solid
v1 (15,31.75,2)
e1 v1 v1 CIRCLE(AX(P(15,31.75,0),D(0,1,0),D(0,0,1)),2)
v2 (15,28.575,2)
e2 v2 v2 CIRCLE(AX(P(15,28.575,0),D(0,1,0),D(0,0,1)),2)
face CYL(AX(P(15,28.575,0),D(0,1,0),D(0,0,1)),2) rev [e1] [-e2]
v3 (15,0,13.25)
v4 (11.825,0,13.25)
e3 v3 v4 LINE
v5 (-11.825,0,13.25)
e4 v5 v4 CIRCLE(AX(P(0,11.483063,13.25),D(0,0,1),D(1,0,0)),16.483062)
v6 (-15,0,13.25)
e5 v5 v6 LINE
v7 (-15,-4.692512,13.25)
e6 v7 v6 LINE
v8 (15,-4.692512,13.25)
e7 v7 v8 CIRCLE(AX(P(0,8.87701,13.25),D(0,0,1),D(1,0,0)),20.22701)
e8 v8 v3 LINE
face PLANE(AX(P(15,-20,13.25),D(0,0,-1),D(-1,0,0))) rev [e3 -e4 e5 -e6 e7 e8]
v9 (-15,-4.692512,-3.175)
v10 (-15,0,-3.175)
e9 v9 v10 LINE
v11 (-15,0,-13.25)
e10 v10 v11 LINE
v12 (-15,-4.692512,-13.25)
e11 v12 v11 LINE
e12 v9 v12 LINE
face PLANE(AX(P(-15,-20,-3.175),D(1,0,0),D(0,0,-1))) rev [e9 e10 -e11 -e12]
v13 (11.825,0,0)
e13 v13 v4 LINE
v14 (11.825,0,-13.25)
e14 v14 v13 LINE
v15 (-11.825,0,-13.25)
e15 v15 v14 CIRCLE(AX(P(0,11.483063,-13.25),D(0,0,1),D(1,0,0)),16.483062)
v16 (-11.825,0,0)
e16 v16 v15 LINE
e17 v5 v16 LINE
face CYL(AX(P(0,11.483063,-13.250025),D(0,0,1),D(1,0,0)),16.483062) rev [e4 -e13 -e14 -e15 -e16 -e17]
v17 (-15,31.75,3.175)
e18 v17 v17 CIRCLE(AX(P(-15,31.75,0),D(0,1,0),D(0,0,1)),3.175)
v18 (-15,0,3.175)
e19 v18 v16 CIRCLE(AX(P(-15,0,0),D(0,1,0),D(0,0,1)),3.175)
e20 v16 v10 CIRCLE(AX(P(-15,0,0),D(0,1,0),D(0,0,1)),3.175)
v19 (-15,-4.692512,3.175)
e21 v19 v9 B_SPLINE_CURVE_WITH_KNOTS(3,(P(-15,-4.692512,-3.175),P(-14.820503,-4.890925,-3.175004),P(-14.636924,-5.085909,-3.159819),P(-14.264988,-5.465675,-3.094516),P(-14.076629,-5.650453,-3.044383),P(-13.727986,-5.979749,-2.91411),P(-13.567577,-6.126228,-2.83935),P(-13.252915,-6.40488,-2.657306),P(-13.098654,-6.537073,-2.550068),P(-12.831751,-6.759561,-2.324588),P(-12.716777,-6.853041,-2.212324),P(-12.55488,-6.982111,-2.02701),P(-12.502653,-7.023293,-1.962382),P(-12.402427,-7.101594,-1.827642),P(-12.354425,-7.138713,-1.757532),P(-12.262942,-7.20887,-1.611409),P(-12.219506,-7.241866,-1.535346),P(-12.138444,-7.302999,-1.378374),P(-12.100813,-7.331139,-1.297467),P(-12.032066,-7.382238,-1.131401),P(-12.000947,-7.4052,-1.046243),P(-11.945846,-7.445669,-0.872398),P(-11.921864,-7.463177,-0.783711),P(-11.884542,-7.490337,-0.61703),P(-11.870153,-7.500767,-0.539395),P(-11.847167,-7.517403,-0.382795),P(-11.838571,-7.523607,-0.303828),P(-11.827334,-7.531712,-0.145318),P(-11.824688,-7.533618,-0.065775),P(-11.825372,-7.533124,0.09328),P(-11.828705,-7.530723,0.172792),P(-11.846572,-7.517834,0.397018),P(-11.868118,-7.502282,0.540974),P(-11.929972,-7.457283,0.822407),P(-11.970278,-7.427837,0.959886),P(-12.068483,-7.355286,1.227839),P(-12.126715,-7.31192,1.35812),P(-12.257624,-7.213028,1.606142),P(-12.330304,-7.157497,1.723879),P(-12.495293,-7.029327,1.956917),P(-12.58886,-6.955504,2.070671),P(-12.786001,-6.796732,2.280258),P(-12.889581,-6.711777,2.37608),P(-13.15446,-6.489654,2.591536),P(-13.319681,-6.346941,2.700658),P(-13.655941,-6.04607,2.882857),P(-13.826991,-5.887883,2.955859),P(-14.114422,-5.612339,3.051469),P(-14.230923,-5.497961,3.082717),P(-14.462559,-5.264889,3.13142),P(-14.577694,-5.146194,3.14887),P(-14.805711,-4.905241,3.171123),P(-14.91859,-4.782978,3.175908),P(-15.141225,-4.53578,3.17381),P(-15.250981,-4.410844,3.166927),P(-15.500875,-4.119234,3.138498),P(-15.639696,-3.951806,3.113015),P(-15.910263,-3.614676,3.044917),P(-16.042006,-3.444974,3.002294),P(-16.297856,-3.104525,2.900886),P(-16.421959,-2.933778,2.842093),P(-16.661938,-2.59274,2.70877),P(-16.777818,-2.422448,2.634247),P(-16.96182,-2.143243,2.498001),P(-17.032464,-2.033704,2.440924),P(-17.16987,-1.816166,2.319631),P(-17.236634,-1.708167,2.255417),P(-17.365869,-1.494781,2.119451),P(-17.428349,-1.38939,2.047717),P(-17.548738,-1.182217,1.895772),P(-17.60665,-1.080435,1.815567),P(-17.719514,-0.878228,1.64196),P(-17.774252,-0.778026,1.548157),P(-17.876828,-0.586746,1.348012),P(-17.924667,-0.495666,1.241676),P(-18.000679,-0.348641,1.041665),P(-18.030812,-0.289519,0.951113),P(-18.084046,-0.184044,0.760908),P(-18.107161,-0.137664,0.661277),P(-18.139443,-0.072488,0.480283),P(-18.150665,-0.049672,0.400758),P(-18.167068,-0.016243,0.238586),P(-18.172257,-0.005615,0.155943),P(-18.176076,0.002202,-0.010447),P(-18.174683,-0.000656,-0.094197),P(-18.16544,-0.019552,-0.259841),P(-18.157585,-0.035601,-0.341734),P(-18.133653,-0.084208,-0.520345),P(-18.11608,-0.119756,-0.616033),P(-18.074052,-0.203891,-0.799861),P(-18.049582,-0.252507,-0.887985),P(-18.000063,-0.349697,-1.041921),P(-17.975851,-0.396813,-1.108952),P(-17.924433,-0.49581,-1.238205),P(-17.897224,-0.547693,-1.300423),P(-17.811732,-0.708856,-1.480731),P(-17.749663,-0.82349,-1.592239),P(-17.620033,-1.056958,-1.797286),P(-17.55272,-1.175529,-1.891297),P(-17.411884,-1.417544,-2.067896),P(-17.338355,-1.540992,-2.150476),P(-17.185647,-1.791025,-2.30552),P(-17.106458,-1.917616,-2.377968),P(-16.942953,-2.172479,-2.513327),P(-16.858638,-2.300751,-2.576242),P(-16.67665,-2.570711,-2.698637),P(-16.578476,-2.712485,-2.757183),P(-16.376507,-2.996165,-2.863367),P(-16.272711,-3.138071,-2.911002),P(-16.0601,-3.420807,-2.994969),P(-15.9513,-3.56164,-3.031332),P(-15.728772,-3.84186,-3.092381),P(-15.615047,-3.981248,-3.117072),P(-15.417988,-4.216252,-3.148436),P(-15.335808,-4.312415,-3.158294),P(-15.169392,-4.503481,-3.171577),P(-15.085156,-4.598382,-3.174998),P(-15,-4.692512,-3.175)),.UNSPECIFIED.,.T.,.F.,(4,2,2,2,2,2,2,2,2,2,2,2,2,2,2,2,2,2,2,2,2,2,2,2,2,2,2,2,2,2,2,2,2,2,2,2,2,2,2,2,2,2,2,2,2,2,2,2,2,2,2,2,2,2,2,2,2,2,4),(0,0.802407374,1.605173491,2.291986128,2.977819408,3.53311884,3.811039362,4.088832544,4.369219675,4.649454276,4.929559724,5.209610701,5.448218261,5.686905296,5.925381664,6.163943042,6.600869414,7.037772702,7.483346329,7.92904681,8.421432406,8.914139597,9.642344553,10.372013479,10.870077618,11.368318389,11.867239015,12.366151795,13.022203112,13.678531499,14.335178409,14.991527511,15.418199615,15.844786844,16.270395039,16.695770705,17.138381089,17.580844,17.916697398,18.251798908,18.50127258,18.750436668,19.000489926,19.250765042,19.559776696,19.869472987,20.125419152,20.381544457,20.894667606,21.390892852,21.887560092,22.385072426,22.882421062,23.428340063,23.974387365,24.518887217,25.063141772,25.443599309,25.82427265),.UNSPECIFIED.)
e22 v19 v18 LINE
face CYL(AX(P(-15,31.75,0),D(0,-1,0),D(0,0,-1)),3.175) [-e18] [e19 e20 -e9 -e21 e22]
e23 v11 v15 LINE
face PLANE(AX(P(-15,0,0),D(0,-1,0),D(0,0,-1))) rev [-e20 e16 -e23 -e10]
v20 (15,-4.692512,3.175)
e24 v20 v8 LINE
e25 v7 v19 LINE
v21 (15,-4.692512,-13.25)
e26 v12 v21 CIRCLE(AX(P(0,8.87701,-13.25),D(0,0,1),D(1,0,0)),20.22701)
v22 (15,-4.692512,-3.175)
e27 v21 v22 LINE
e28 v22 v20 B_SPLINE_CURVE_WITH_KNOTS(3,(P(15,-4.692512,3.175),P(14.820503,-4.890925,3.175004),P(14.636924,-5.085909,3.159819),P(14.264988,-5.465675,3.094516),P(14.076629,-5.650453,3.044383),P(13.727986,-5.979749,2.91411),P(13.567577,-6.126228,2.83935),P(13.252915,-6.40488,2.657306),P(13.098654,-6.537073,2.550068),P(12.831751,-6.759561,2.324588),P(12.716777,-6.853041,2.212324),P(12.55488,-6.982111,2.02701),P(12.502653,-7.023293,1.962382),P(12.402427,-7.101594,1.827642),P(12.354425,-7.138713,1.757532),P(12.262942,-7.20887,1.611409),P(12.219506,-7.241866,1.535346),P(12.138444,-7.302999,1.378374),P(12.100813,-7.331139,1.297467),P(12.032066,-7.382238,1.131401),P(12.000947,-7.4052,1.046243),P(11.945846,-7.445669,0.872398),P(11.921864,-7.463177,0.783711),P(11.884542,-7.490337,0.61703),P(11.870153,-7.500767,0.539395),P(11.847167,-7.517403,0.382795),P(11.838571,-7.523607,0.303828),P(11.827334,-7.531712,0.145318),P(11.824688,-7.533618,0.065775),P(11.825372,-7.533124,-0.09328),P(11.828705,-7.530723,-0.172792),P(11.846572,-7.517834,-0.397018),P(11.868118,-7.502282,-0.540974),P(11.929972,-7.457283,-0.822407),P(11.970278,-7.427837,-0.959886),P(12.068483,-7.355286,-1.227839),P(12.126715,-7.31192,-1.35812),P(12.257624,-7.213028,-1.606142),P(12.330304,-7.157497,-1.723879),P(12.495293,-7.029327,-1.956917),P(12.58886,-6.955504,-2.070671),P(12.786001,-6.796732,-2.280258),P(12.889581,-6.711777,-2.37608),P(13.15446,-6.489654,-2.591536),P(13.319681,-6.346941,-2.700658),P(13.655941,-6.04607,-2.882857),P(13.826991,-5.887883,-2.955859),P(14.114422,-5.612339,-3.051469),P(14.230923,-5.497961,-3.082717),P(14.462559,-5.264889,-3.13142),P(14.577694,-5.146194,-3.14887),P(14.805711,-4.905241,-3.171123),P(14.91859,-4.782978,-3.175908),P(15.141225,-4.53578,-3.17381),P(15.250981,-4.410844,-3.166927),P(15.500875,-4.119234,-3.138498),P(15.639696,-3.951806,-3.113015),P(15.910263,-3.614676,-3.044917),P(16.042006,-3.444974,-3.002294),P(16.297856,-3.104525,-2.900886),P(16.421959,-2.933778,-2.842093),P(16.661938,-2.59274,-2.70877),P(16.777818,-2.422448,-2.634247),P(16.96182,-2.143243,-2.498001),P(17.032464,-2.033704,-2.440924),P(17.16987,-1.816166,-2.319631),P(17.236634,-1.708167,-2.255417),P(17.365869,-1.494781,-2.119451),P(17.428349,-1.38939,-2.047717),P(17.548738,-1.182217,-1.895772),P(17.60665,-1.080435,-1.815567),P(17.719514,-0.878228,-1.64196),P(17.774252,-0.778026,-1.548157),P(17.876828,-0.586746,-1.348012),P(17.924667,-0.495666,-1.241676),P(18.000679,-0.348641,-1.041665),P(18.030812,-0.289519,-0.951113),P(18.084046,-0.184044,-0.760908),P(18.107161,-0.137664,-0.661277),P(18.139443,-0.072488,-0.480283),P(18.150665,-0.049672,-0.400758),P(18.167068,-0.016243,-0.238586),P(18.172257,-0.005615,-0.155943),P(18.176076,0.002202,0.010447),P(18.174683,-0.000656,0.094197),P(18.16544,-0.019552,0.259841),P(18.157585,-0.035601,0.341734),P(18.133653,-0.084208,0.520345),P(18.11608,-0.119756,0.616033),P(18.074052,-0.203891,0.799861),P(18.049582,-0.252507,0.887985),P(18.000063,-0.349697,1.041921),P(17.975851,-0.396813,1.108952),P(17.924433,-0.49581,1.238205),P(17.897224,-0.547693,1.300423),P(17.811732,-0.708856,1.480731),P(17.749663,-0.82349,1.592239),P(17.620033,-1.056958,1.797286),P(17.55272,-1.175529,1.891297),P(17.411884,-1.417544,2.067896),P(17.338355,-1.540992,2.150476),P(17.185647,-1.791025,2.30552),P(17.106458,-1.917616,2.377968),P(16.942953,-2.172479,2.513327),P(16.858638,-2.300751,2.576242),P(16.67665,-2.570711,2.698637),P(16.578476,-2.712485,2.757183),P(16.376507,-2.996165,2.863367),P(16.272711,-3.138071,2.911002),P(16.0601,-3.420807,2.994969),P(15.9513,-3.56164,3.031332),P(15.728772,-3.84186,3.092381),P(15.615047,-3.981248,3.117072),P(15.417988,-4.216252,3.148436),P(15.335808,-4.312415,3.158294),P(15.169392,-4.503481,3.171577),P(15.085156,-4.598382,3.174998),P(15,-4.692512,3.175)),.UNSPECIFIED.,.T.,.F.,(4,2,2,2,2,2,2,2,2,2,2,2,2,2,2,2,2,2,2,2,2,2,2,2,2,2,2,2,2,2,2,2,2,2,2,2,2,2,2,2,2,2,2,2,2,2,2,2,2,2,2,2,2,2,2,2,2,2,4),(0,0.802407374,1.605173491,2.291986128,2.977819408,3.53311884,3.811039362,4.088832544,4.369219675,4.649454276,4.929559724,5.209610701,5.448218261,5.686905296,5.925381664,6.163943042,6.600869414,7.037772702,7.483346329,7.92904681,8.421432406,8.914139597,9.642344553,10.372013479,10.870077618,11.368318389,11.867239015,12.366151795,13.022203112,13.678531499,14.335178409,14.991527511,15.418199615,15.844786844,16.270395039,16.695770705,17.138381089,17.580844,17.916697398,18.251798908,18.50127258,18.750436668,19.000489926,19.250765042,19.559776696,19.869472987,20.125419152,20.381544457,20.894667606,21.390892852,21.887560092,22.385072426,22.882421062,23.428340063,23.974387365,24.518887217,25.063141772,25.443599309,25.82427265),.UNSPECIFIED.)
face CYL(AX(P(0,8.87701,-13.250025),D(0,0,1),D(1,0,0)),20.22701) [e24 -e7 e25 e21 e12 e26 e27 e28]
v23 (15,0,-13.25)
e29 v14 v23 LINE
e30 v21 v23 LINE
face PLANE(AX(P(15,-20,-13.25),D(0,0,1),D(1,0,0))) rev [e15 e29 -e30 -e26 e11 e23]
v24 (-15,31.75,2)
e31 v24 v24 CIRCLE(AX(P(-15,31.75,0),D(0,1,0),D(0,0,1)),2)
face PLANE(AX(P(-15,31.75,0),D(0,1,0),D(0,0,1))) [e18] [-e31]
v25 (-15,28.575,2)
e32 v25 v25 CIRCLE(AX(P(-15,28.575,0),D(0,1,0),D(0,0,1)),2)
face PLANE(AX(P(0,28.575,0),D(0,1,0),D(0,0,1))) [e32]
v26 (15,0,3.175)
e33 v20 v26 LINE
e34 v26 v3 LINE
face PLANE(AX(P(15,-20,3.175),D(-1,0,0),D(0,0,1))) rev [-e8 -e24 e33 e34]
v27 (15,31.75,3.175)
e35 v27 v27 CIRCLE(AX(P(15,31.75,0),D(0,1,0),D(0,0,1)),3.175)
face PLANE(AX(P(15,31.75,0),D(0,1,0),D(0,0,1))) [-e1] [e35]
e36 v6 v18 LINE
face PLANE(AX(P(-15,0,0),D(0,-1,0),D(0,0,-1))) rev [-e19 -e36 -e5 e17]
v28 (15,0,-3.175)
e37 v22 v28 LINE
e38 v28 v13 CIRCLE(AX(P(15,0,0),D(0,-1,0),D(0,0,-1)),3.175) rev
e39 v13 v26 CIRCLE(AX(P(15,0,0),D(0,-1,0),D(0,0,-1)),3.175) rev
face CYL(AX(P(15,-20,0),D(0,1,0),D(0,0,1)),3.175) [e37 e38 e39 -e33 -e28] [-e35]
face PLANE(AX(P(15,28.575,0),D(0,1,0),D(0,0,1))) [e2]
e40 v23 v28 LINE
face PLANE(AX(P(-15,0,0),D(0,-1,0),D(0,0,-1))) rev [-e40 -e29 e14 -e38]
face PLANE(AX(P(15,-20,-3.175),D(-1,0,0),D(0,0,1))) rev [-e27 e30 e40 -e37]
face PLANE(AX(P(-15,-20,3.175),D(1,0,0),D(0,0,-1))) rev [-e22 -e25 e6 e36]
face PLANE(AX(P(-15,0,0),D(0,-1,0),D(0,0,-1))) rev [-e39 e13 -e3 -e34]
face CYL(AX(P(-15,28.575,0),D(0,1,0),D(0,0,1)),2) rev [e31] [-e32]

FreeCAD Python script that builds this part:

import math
import FreeCAD as App
import Part
import Sketcher

V = App.Vector
Q = App.Units.Quantity

doc = App.newDocument("Part")
body = doc.addObject("PartDesign::Body", "Body")

# Sketch on XZ plane
sketch1 = body.newObject("Sketcher::SketchObject", "Sketch")
sketch1.AttachmentSupport = (doc.getObject("XZ_Plane"), [""])
sketch1.MapMode = "FlatFace"
sketch1.addGeometry(Part.Circle(V(-15, 0, 0), V(0, 0, 1), 3.2), False)
sketch1.addConstraint(Sketcher.Constraint("PointOnObject", 0, 3, -1))
sketch1.addConstraint(Sketcher.Constraint("Diameter", 0, Q("6.35 mm")))
sketch1.addConstraint(Sketcher.Constraint("DistanceX", 0, 3, -1, 1, Q("15 mm")))
pad1 = body.newObject("PartDesign::Pad", "Pad")
pad1.Profile = sketch1
pad1.Length = 31.75
pad1.Reversed = True
body2 = doc.addObject("PartDesign::Body", "Body001")

# Sketch on XZ plane
sketch2 = body2.newObject("Sketcher::SketchObject", "Sketch001")
sketch2.AttachmentSupport = (doc.getObject("XZ_Plane001"), [""])
sketch2.MapMode = "FlatFace"
sketch2.addGeometry(Part.Circle(V(15, 0, 0), V(0, 0, 1), 3.2), False)
sketch2.addConstraint(Sketcher.Constraint("PointOnObject", 0, 3, -1))
sketch2.addConstraint(Sketcher.Constraint("Diameter", 0, Q("6.35 mm")))
sketch2.addConstraint(Sketcher.Constraint("DistanceX", -1, 1, 0, 3, Q("15 mm")))
pad2 = body2.newObject("PartDesign::Pad", "Pad001")
pad2.Profile = sketch2
pad2.Length = 31.75
pad2.Reversed = True
body.AllowCompound = True
doc.recompute()

boolean = body.newObject("PartDesign::Boolean", "Boolean")
boolean.Type = "Fuse"
boolean.addObjects([body2])

# Sketch on XZ plane
sketch3 = body.newObject("Sketcher::SketchObject", "Sketch002")
sketch3.AttachmentSupport = (doc.getObject("XZ_Plane"), [""])
sketch3.MapMode = "FlatFace"
sketch3.AttachmentOffset = App.Placement(V(0, 0, 20), App.Rotation())
sketch3.addGeometry(Part.LineSegment(V(-15, 13.2, 0), V(-15, 3.2, 0)), False)
sketch3.addGeometry(Part.ArcOfCircle(Part.Circle(V(-15, 0, 0), V(0, 0, 1), 3.2), math.radians(90), math.radians(270)), False)
sketch3.addGeometry(Part.LineSegment(V(-15, -3.2, 0), V(-15, -13.2, 0)), False)
sketch3.addGeometry(Part.LineSegment(V(-15, -13.2, 0), V(15, -13.2, 0)), False)
sketch3.addGeometry(Part.LineSegment(V(15, -13.2, 0), V(15, -3.2, 0)), False)
sketch3.addGeometry(Part.ArcOfCircle(Part.Circle(V(15, 0, 0), V(0, 0, 1), 3.2), math.radians(-90), math.radians(90)), False)
sketch3.addGeometry(Part.LineSegment(V(15, 3.2, 0), V(15, 13.2, 0)), False)
sketch3.addGeometry(Part.LineSegment(V(15, 13.2, 0), V(-15, 13.2, 0)), False)
sketch3.addConstraint(Sketcher.Constraint("Coincident", 0, 2, 1, 1))
sketch3.addConstraint(Sketcher.Constraint("Coincident", 1, 2, 2, 1))
sketch3.addConstraint(Sketcher.Constraint("Coincident", 2, 2, 3, 1))
sketch3.addConstraint(Sketcher.Constraint("Coincident", 3, 2, 4, 1))
sketch3.addConstraint(Sketcher.Constraint("Coincident", 4, 2, 5, 1))
sketch3.addConstraint(Sketcher.Constraint("Coincident", 5, 2, 6, 1))
sketch3.addConstraint(Sketcher.Constraint("Coincident", 6, 2, 7, 1))
sketch3.addConstraint(Sketcher.Constraint("Coincident", 7, 2, 0, 1))
sketch3.addConstraint(Sketcher.Constraint("Vertical", 0))
sketch3.addConstraint(Sketcher.Constraint("Vertical", 2))
sketch3.addConstraint(Sketcher.Constraint("Horizontal", 3))
sketch3.addConstraint(Sketcher.Constraint("Vertical", 4))
sketch3.addConstraint(Sketcher.Constraint("Vertical", 6))
sketch3.addConstraint(Sketcher.Constraint("Horizontal", 7))
sketch3.addConstraint(Sketcher.Constraint("Equal", 1, 5))
sketch3.addConstraint(Sketcher.Constraint("Symmetric", 1, 3, 5, 3, -1, 1))
sketch3.addConstraint(Sketcher.Constraint("Symmetric", 2, 2, 6, 2, -1, 1))
sketch3.addConstraint(Sketcher.Constraint("Symmetric", 1, 2, 4, 2, -2))
sketch3.addConstraint(Sketcher.Constraint("Vertical", 1, 3, 0, 2))
sketch3.addConstraint(Sketcher.Constraint("Vertical", 0, 2, 1, 2))
sketch3.addConstraint(Sketcher.Constraint("DistanceX", 3, 1, 3, 2, Q("30 mm")))
sketch3.addConstraint(Sketcher.Constraint("Radius", 1, Q("3.175 mm")))
sketch3.addConstraint(Sketcher.Constraint("DistanceY", 3, 2, 6, 2, Q("26.5 mm")))
pad3 = body.newObject("PartDesign::Pad", "Pad002")
pad3.Profile = sketch3
pad3.Length = 20
pad3.Reversed = True

# Sketch on XY plane
sketch4 = body.newObject("Sketcher::SketchObject", "Sketch003")
sketch4.AttachmentSupport = (doc.getObject("XY_Plane"), [""])
sketch4.MapMode = "FlatFace"
sketch4.AttachmentOffset = App.Placement(V(0, 0, 13.25), App.Rotation())
sketch4.addGeometry(Part.ArcOfCircle(Part.Circle(V(0, 9, 0), V(0, 0, 1), 20), math.radians(-138), math.radians(-42)), False)
sketch4.addGeometry(Part.ArcOfCircle(Part.Circle(V(0, 9, 0), V(0, 0, 1), 20), math.radians(-153.97), math.radians(-137.87)), False)
sketch4.addGeometry(Part.LineSegment(V(-18, 0, 0), V(-18, -20, 0)), False)
sketch4.addGeometry(Part.LineSegment(V(-18, -20, 0), V(18, -20, 0)), False)
sketch4.addGeometry(Part.LineSegment(V(18, -20, 0), V(18, 0, 0)), False)
sketch4.addGeometry(Part.ArcOfCircle(Part.Circle(V(0, 9, 0), V(0, 0, 1), 20), math.radians(-42.13), math.radians(-26.03)), False)
sketch4.addGeometry(Part.ArcOfCircle(Part.Circle(V(0, 11, 0), V(0, 0, 1), 16), math.radians(-136), math.radians(-44)), False)
sketch4.addGeometry(Part.LineSegment(V(12, 0, 0), V(-12, 0, 0)), False)
sketch4.addConstraint(Sketcher.Constraint("Tangent", 0, 1, 1, 2))
sketch4.addConstraint(Sketcher.Constraint("Coincident", 1, 1, 2, 1))
sketch4.addConstraint(Sketcher.Constraint("Coincident", 2, 2, 3, 1))
sketch4.addConstraint(Sketcher.Constraint("Coincident", 3, 2, 4, 1))
sketch4.addConstraint(Sketcher.Constraint("Coincident", 4, 2, 5, 2))
sketch4.addConstraint(Sketcher.Constraint("Tangent", 5, 1, 0, 2))
sketch4.addConstraint(Sketcher.Constraint("Coincident", 6, 1, 7, 2))
sketch4.addConstraint(Sketcher.Constraint("Coincident", 7, 1, 6, 2))
sketch4.addConstraint(Sketcher.Constraint("Vertical", 2))
sketch4.addConstraint(Sketcher.Constraint("Horizontal", 3))
sketch4.addConstraint(Sketcher.Constraint("Vertical", 4))
sketch4.addConstraint(Sketcher.Constraint("Horizontal", 7))
sketch4.addConstraint(Sketcher.Constraint("Equal", 0, 1))
sketch4.addConstraint(Sketcher.Constraint("Equal", 1, 5))
sketch4.addConstraint(Sketcher.Constraint("Symmetric", 1, 1, 4, 2, -1, 1))
sketch4.addConstraint(Sketcher.Constraint("Symmetric", 6, 1, 7, 1, -1, 1))
sketch4.addConstraint(Sketcher.Constraint("Symmetric", 0, 1, 5, 1, -2))
sketch4.addConstraint(Sketcher.Constraint("DistanceY", 2, 2, 2, 1, Q("20 mm")))
sketch4.addConstraint(Sketcher.Constraint("DistanceX", 0, 1, -1, 1, Q("15 mm")))
sketch4.addConstraint(Sketcher.Constraint("DistanceX", 3, 1, 3, 2, Q("36.35 mm")))
sketch4.addConstraint(Sketcher.Constraint("DistanceX", 7, 2, 7, 1, Q("23.65 mm")))
sketch4.addConstraint(Sketcher.Constraint("Radius", 0, Q("20.22701 mm")))
sketch4.addConstraint(Sketcher.Constraint("Radius", 6, Q("16.483062 mm")))
pocket1 = body.newObject("PartDesign::Pocket", "Pocket")
pocket1.Profile = sketch4
pocket1.Type = "ThroughAll"

# Sketch on XZ plane
sketch5 = body.newObject("Sketcher::SketchObject", "Sketch004")
sketch5.AttachmentSupport = (doc.getObject("XZ_Plane"), [""])
sketch5.MapMode = "FlatFace"
sketch5.AttachmentOffset = App.Placement(V(0, 0, -31.75), App.Rotation())
sketch5.addGeometry(Part.Circle(V(-15, 0, 0), V(0, 0, 1), 2), False)
sketch5.addGeometry(Part.Circle(V(15, 0, 0), V(0, 0, 1), 2), False)
sketch5.addConstraint(Sketcher.Constraint("Equal", 0, 1))
sketch5.addConstraint(Sketcher.Constraint("Symmetric", 0, 3, 1, 3, -1, 1))
sketch5.addConstraint(Sketcher.Constraint("PointOnObject", 0, 3, -1))
sketch5.addConstraint(Sketcher.Constraint("Diameter", 0, Q("4 mm")))
sketch5.addConstraint(Sketcher.Constraint("DistanceX", 0, 3, -1, 1, Q("15 mm")))
pocket2 = body.newObject("PartDesign::Pocket", "Pocket001")
pocket2.Profile = sketch5
pocket2.Length = 3.175
pocket2.Reversed = True

doc.recompute()
